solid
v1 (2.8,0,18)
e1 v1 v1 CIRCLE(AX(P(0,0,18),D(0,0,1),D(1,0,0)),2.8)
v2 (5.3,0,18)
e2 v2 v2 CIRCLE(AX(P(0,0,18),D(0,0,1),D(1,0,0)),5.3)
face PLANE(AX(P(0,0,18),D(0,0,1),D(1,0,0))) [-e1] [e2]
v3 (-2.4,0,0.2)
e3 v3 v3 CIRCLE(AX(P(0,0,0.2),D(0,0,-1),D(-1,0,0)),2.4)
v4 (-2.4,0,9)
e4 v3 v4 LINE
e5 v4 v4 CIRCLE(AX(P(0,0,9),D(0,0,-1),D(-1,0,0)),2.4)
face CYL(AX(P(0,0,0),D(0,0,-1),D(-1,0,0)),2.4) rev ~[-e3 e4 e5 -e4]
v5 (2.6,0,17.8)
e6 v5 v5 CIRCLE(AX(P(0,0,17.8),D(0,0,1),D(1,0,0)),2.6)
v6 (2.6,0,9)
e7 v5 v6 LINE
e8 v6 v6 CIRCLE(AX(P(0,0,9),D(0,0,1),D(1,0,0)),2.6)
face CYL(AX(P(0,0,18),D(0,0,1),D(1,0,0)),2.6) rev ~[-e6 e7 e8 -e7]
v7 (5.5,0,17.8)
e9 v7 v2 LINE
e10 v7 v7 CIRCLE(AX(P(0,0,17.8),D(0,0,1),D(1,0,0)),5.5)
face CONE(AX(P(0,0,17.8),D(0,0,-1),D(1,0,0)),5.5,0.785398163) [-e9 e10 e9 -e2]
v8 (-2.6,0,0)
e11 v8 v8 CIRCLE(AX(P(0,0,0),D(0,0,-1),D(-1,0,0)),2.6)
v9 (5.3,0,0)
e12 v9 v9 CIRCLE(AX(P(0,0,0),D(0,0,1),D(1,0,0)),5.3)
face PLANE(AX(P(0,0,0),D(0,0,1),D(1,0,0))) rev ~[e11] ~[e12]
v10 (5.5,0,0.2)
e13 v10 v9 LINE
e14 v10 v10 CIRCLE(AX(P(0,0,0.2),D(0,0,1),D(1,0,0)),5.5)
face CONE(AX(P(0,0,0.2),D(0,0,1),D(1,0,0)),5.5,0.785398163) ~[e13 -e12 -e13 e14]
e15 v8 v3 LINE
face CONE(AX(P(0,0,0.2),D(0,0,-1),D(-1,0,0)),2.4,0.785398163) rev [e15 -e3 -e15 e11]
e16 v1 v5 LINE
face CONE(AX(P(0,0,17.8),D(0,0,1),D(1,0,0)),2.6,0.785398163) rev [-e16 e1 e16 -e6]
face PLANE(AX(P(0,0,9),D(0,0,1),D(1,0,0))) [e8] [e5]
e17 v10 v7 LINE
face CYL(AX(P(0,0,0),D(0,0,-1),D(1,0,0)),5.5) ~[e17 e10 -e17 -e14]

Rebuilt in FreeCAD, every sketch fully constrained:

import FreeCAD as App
import Part
import Sketcher

V = App.Vector


def edges_at(feature, points):
    """Names of the edges that pass closest to the given points."""
    edges = feature.Shape.Edges
    near = lambda p: min(range(len(edges)), key=lambda i: edges[i].distToShape(Part.Vertex(*p))[0])
    return sorted({f"Edge{near(p) + 1}" for p in points})

doc = App.newDocument("Part")
params = doc.addObject("Spreadsheet::Sheet", "Params")
for row, (alias, value) in enumerate([
    ("sketch1_diameter", "11 mm"),
    ("pad1_length", "18 mm"),
    ("sketch2_diameter", "5.2 mm"),
    ("pocket1_length", "9 mm"),
    ("sketch3_diameter", "4.8 mm"),
    ("pocket2_length", "9 mm"),
    ("chamfer_size", "0.2 mm"),
], start=1):
    params.set(f"A{row}", alias)
    params.set(f"B{row}", "=" + value)
    params.setAlias(f"B{row}", alias)

body = doc.addObject("PartDesign::Body", "Body")

# Sketch on XY plane
sketch1 = doc.addObject("Sketcher::SketchObject", "Sketch")
body.addObject(sketch1)
sketch1.AttachmentSupport = (doc.XY_Plane, [""])
sketch1.MapMode = "FlatFace"
sketch1.addGeometry(Part.Circle(V(0, 0, 0), V(0, 0, 1), 6), False)
sketch1.addConstraint([
    Sketcher.Constraint("Coincident", 0, 3, -1, 1),
    Sketcher.Constraint("Diameter", 0, 11.0),
])
sketch1.setExpression("Constraints[1]", "Params.sketch1_diameter")
pad1 = doc.addObject("PartDesign::Pad", "Pad")
body.addObject(pad1)
pad1.Profile = sketch1
pad1.setExpression("Length", "Params.pad1_length")

# Sketch on XY plane
sketch2 = doc.addObject("Sketcher::SketchObject", "Sketch001")
body.addObject(sketch2)
sketch2.AttachmentSupport = (doc.XY_Plane, [""])
sketch2.MapMode = "FlatFace"
sketch2.AttachmentOffset = App.Placement(V(0, 0, 18), App.Rotation())
sketch2.addGeometry(Part.Circle(V(0, 0, 0), V(0, 0, 1), 2.6), False)
sketch2.addConstraint([
    Sketcher.Constraint("Coincident", 0, 3, -1, 1),
    Sketcher.Constraint("Diameter", 0, 5.2),
])
sketch2.setExpression("Constraints[1]", "Params.sketch2_diameter")
pocket1 = doc.addObject("PartDesign::Pocket", "Pocket")
body.addObject(pocket1)
pocket1.Profile = sketch2
pocket1.setExpression("Length", "Params.pocket1_length")

# Sketch on XY plane
sketch3 = doc.addObject("Sketcher::SketchObject", "Sketch002")
body.addObject(sketch3)
sketch3.AttachmentSupport = (doc.XY_Plane, [""])
sketch3.MapMode = "FlatFace"
sketch3.addGeometry(Part.Circle(V(0, 0, 0), V(0, 0, 1), 2.4), False)
sketch3.addConstraint([
    Sketcher.Constraint("Coincident", 0, 3, -1, 1),
    Sketcher.Constraint("Diameter", 0, 4.8),
])
sketch3.setExpression("Constraints[1]", "Params.sketch3_diameter")
pocket2 = doc.addObject("PartDesign::Pocket", "Pocket001")
body.addObject(pocket2)
pocket2.Profile = sketch3
pocket2.setExpression("Length", "Params.pocket2_length")
pocket2.Reversed = True
doc.recompute()

chamfer = doc.addObject("PartDesign::Chamfer", "Chamfer")
body.addObject(chamfer)
chamfer.Base = (pocket2, edges_at(pocket2, [
    (-5.5, 0, 18),
    (-5.5, 0, 0),
    (2.4, 0, 0),
    (-2.6, 0, 18),
]))
chamfer.setExpression("Size", "Params.chamfer_size")

doc.recompute()
